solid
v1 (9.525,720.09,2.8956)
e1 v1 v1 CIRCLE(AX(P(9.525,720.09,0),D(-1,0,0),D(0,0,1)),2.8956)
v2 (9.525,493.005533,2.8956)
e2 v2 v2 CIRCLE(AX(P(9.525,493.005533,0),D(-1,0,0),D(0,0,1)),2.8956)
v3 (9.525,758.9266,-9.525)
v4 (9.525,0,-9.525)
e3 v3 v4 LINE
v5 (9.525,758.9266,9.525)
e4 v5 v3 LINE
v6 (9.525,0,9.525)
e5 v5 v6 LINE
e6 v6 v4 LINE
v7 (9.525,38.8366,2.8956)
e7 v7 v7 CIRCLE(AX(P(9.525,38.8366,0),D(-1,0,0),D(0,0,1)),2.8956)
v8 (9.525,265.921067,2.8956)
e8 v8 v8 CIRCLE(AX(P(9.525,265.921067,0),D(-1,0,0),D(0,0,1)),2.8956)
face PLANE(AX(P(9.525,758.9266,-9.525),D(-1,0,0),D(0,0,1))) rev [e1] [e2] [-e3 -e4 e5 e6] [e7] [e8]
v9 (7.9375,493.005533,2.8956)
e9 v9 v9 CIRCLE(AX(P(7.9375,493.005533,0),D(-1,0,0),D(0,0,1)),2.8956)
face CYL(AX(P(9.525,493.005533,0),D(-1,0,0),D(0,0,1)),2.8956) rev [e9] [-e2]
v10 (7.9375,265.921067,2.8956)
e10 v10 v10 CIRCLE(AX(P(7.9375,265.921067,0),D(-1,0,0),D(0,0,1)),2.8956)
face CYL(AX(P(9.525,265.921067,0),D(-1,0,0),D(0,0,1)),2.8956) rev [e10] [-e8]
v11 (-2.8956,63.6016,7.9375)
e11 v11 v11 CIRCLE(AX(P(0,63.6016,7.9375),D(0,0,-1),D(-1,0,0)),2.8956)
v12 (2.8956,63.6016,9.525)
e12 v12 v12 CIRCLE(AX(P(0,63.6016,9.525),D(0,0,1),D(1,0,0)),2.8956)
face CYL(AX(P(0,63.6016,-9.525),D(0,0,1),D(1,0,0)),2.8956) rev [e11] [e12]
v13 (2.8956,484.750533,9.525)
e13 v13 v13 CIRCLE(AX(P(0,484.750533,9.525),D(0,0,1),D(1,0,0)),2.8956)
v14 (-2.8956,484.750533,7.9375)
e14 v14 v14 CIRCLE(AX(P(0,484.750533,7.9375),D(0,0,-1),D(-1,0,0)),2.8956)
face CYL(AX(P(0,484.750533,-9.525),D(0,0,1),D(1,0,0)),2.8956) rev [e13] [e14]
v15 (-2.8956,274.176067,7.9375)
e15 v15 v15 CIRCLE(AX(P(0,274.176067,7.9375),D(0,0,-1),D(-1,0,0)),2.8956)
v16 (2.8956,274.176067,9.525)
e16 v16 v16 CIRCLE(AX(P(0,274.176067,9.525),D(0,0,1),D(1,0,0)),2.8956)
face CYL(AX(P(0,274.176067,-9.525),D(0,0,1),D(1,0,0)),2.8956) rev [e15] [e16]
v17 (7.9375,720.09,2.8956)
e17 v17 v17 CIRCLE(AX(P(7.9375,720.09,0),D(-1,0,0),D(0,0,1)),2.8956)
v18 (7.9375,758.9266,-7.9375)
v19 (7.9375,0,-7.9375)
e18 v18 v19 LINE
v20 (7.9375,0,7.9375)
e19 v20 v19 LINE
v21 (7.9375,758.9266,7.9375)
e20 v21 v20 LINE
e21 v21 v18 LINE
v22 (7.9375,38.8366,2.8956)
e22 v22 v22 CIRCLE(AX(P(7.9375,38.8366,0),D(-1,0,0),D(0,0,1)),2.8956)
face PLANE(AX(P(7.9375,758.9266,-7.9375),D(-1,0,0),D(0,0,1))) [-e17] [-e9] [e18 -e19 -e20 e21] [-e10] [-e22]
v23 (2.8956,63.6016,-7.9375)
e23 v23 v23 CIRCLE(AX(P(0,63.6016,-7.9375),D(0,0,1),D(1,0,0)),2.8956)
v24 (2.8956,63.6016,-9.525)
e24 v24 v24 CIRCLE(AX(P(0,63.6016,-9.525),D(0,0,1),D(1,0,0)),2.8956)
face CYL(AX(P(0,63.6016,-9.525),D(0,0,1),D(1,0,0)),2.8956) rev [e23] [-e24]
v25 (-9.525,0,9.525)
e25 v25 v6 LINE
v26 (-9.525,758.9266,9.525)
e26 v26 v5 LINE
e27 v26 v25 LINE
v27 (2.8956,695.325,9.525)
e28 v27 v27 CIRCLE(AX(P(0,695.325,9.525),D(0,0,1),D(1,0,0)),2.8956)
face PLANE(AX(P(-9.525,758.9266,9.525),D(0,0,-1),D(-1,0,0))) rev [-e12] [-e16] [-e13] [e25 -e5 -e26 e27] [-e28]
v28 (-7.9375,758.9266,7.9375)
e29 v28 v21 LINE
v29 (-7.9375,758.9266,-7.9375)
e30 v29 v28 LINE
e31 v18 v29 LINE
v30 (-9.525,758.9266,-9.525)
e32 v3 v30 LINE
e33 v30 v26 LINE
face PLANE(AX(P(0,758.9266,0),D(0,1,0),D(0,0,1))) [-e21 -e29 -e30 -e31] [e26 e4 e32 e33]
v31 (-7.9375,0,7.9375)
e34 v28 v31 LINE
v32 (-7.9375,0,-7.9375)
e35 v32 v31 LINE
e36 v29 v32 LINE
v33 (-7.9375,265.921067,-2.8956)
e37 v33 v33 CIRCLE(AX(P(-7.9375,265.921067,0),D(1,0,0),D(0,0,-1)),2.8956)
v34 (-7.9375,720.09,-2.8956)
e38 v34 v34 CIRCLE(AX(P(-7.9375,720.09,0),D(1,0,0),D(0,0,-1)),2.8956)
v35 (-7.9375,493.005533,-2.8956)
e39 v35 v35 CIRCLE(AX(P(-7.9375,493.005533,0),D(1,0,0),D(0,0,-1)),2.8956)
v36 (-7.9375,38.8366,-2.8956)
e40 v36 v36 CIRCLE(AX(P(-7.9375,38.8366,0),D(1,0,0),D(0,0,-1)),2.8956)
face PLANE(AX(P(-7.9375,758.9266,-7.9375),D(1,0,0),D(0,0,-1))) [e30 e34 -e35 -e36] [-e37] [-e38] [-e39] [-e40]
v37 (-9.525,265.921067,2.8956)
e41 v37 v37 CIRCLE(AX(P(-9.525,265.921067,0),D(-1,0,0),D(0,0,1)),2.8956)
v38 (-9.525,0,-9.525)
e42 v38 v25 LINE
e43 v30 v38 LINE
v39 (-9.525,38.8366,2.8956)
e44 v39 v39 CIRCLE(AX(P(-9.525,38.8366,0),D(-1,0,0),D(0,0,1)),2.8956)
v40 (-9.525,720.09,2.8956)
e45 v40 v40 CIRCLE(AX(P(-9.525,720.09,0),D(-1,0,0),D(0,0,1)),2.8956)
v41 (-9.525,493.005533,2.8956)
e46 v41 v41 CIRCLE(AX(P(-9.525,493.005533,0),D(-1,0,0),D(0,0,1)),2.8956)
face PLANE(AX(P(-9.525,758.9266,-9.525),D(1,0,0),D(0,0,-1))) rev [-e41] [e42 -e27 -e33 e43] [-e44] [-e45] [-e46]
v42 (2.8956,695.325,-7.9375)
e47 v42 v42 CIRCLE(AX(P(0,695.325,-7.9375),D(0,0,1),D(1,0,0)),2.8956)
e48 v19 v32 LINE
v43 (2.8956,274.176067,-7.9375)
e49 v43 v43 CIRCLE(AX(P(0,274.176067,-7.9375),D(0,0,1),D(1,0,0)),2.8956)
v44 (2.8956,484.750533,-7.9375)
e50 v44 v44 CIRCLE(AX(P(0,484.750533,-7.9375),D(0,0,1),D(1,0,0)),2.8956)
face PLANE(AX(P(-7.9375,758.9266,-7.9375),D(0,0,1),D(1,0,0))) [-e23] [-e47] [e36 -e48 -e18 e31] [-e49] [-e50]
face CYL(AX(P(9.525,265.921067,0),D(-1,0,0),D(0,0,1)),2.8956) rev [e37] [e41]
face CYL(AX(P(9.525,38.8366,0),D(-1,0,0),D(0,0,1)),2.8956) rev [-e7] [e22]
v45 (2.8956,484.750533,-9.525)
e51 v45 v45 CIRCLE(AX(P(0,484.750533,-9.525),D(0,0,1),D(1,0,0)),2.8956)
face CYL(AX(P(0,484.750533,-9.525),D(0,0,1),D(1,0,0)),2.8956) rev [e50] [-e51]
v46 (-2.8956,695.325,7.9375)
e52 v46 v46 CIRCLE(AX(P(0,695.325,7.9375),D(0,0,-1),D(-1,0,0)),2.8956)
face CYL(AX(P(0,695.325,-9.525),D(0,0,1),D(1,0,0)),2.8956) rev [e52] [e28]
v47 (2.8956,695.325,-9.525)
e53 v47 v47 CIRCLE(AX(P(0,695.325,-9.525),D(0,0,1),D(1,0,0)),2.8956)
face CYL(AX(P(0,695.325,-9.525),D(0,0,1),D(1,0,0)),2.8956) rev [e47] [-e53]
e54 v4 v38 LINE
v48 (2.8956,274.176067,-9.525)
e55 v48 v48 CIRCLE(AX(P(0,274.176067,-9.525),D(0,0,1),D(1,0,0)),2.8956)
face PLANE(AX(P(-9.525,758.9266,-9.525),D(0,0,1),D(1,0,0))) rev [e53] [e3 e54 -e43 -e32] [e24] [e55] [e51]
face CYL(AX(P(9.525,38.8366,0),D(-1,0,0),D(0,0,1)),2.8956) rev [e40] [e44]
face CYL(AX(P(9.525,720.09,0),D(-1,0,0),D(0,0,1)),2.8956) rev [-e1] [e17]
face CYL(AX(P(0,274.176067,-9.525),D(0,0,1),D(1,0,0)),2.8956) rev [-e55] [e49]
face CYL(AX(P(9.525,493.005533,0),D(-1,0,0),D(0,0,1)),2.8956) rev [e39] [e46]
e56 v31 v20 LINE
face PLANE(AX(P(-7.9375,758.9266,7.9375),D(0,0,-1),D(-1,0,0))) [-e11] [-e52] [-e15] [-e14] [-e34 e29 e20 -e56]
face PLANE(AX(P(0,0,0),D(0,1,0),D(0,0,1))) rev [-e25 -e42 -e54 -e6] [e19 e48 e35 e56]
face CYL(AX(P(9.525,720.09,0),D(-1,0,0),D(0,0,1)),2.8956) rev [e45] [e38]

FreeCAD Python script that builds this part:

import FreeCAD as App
import Part
import Sketcher
from FreeCAD import Vector
Q = App.Units.Quantity


def add_polygon(sketch, points):
    """Adds a closed chain of lines whose ends are joined by coincident constraints."""
    first, n = sketch.GeometryCount, len(points)
    for a, b in zip(points, points[1:] + points[:1]):
        sketch.addGeometry(Part.LineSegment(App.Vector(*a, 0), App.Vector(*b, 0)), False)
    for i in range(n):
        sketch.addConstraint(Sketcher.Constraint("Coincident", first + i, 2, first + (i + 1) % n, 1))

doc = App.newDocument("Part")
params = doc.addObject("Spreadsheet::Sheet", "Params")
for row, (alias, value) in enumerate([
    ("sketch1_width", "0.75 in"),
    ("sketch1_width2", "0.625 in"),
    ("pad1_length", "29.879 in"),
    ("sketch2_diameter", "0.228 in"),
    ("linearpattern_pitch", "210.574467 mm"),
    ("sketch3_diameter", "0.228 in"),
    ("linearpattern2_pitch", "227.084467 mm"),
], start=1):
    params.set(f"A{row}", alias)
    params.set(f"B{row}", "=" + value)
    params.setAlias(f"B{row}", alias)

body = doc.addObject("PartDesign::Body", "Body")

# Sketch on XZ plane
sketch1 = doc.addObject("Sketcher::SketchObject", "Sketch")
body.addObject(sketch1)
sketch1.AttachmentSupport = (doc.XZ_Plane, [""])
sketch1.MapMode = "FlatFace"
add_polygon(sketch1, [(-10, -10), (-10, 10), (10, 10), (10, -10)])  # lines 0-3
add_polygon(sketch1, [(8, 8), (-8, 8), (-8, -8), (8, -8)])  # lines 4-7
sketch1.addConstraint(Sketcher.Constraint("Vertical", 0))
sketch1.addConstraint(Sketcher.Constraint("Horizontal", 1))
sketch1.addConstraint(Sketcher.Constraint("Vertical", 2))
sketch1.addConstraint(Sketcher.Constraint("Horizontal", 3))
sketch1.addConstraint(Sketcher.Constraint("Horizontal", 4))
sketch1.addConstraint(Sketcher.Constraint("Vertical", 5))
sketch1.addConstraint(Sketcher.Constraint("Horizontal", 6))
sketch1.addConstraint(Sketcher.Constraint("Vertical", 7))
sketch1.addConstraint(Sketcher.Constraint("Symmetric", 0, 2, 2, 2, -1, 1))
sketch1.addConstraint(Sketcher.Constraint("Symmetric", 4, 2, 6, 2, -1, 1))
sketch1.addConstraint(Sketcher.Constraint("Equal", 3, 0))
sketch1.addConstraint(Sketcher.Constraint("Equal", 6, 5))
sketch1.addConstraint(Sketcher.Constraint("DistanceX", 1, 1, 1, 2, Q("0.75 in")))
sketch1.addConstraint(Sketcher.Constraint("DistanceX", 4, 2, 4, 1, Q("0.625 in")))
sketch1.setExpression("Constraints[20]", "Params.sketch1_width")
sketch1.setExpression("Constraints[21]", "Params.sketch1_width2")
pad1 = doc.addObject("PartDesign::Pad", "Pad")
body.addObject(pad1)
pad1.Profile = sketch1
pad1.setExpression("Length", "Params.pad1_length")
pad1.Reversed = True

# Sketch on XY plane
sketch2 = doc.addObject("Sketcher::SketchObject", "Sketch001")
body.addObject(sketch2)
sketch2.AttachmentSupport = (doc.XY_Plane, [""])
sketch2.MapMode = "FlatFace"
sketch2.AttachmentOffset = App.Placement(Vector(0, 0, 0.375 * 25.4), App.Rotation())
sketch2.addGeometry(Part.Circle(Vector(0, 695.3, 0), Vector(0, 0, 1), 2.9), False)
sketch2.addConstraint(Sketcher.Constraint("PointOnObject", 0, 3, -2))
sketch2.addConstraint(Sketcher.Constraint("Diameter", 0, Q("0.228 in")))
sketch2.addConstraint(Sketcher.Constraint("DistanceY", -1, 1, 0, 3, Q("27.375 in")))
sketch2.setExpression("Constraints[1]", "Params.sketch2_diameter")
pocket1 = doc.addObject("PartDesign::Pocket", "Pocket")
body.addObject(pocket1)
pocket1.Profile = sketch2
pocket1.Type = "ThroughAll"
doc.recompute()

linearpattern = doc.addObject("PartDesign::LinearPattern", "LinearPattern")
body.addObject(linearpattern)
linearpattern.Originals = [pocket1]
linearpattern.Direction = (doc.Y_Axis, [""])
linearpattern.Mode = "offset"
linearpattern.setExpression("Offset", "Params.linearpattern_pitch")
linearpattern.Occurrences = 4
linearpattern.Reversed = True
body.Tip = linearpattern

# Sketch on YZ plane
sketch3 = doc.addObject("Sketcher::SketchObject", "Sketch002")
body.addObject(sketch3)
sketch3.AttachmentSupport = (doc.YZ_Plane, [""])
sketch3.MapMode = "FlatFace"
sketch3.AttachmentOffset = App.Placement(Vector(0, 0, -0.375 * 25.4), App.Rotation())
sketch3.addGeometry(Part.Circle(Vector(720.1, 0, 0), Vector(0, 0, 1), 2.9), False)
sketch3.addConstraint(Sketcher.Constraint("PointOnObject", 0, 3, -1))
sketch3.addConstraint(Sketcher.Constraint("Diameter", 0, Q("0.228 in")))
sketch3.addConstraint(Sketcher.Constraint("DistanceX", -1, 1, 0, 3, Q("28.35 in")))
sketch3.setExpression("Constraints[1]", "Params.sketch3_diameter")
pocket2 = doc.addObject("PartDesign::Pocket", "Pocket001")
body.addObject(pocket2)
pocket2.Profile = sketch3
pocket2.Type = "ThroughAll"
pocket2.Reversed = True
doc.recompute()

linearpattern2 = doc.addObject("PartDesign::LinearPattern", "LinearPattern001")
body.addObject(linearpattern2)
linearpattern2.Originals = [pocket2]
linearpattern2.Direction = (doc.Y_Axis, [""])
linearpattern2.Mode = "offset"
linearpattern2.setExpression("Offset", "Params.linearpattern2_pitch")
linearpattern2.Occurrences = 4
linearpattern2.Reversed = True
body.Tip = linearpattern2

doc.recompute()
